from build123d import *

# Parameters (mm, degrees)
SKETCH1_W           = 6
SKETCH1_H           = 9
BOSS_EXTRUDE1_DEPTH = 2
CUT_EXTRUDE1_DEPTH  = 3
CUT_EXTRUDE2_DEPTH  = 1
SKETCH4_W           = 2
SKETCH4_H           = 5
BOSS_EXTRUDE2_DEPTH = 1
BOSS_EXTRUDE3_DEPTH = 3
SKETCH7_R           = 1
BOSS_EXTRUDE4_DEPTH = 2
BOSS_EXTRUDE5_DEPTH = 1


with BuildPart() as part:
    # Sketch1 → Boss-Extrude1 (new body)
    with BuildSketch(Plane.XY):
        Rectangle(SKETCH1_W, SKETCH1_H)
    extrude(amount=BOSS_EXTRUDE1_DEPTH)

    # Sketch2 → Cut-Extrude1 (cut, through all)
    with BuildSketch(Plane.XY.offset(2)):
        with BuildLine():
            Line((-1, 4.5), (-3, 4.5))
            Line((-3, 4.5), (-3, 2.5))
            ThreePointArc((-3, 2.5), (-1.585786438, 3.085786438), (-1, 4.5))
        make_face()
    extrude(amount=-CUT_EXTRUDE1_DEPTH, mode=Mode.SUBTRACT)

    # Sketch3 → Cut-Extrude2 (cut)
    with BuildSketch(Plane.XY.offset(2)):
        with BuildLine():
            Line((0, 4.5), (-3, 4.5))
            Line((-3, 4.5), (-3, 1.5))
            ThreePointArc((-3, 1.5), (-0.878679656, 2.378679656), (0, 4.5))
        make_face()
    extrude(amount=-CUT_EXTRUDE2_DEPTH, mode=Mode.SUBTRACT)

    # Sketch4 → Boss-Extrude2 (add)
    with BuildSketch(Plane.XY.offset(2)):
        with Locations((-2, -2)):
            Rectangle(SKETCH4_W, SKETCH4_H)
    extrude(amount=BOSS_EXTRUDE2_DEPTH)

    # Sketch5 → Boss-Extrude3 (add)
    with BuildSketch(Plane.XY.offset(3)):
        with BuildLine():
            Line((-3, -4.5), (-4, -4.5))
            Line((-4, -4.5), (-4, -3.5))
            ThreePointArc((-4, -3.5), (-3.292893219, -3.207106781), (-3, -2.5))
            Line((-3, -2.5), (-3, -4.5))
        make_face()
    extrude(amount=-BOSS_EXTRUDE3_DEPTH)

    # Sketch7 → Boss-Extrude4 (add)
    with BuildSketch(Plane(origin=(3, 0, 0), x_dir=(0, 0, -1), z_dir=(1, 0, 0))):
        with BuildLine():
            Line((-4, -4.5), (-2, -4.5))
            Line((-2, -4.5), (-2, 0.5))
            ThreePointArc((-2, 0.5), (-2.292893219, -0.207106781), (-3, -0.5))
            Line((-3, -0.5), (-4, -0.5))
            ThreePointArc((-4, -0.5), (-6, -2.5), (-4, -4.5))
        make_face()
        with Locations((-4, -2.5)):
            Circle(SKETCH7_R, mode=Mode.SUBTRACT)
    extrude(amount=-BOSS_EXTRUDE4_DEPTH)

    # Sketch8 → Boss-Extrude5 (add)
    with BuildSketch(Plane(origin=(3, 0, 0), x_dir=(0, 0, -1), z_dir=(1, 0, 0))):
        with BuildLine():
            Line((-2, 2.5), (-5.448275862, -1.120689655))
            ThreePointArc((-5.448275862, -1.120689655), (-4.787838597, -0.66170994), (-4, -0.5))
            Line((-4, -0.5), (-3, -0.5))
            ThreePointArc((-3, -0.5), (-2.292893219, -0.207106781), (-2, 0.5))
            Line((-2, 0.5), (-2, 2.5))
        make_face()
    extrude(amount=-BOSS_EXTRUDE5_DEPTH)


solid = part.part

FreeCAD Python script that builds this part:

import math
import FreeCAD as App
import Part
import Sketcher
from FreeCAD import Vector

doc = App.newDocument("Part")
params = doc.addObject("Spreadsheet::Sheet", "Params")
for row, (alias, value) in enumerate([
    ("sketch1_width", "6 mm"),
    ("sketch1_height", "9 mm"),
    ("pad1_length", "2 mm"),
    ("sketch2_radius", "2 mm"),
    ("sketch3_radius", "3 mm"),
    ("pocket2_length", "1 mm"),
    ("sketch4_width", "2 mm"),
    ("sketch4_height", "5 mm"),
    ("pad2_length", "1 mm"),
    ("sketch5_radius", "1 mm"),
    ("sketch5_width", "1 mm"),
    ("pad3_length", "3 mm"),
    ("sketch6_diameter", "2 mm"),
    ("sketch6_radius", "2 mm"),
    ("sketch6_height", "2 mm"),
    ("pad4_length", "2 mm"),
    ("sketch7_radius", "2 mm"),
    ("sketch7_radius2", "1 mm"),
    ("sketch7_width", "2 mm"),
    ("sketch7_height", "1 mm"),
    ("pad5_length", "1 mm"),
], start=1):
    params.set(f"A{row}", alias)
    params.set(f"B{row}", "=" + value)
    params.setAlias(f"B{row}", alias)

body = doc.addObject("PartDesign::Body", "Body")

sketch1 = doc.addObject("Sketcher::SketchObject", "Sketch")
body.addObject(sketch1)
sketch1.AttachmentSupport = (doc.XY_Plane, [""])
sketch1.MapMode = "FlatFace"
sketch1.addGeometry(Part.LineSegment(Vector(-3, 4, 0), Vector(-3, -4, 0)), False)
sketch1.addGeometry(Part.LineSegment(Vector(-3, -4, 0), Vector(3, -4, 0)), False)
sketch1.addGeometry(Part.LineSegment(Vector(3, -4, 0), Vector(3, 4, 0)), False)
sketch1.addGeometry(Part.LineSegment(Vector(3, 4, 0), Vector(-3, 4, 0)), False)
sketch1.addConstraint(Sketcher.Constraint("Coincident", 0, 2, 1, 1))
sketch1.addConstraint(Sketcher.Constraint("Coincident", 1, 2, 2, 1))
sketch1.addConstraint(Sketcher.Constraint("Coincident", 2, 2, 3, 1))
sketch1.addConstraint(Sketcher.Constraint("Coincident", 3, 2, 0, 1))
sketch1.addConstraint(Sketcher.Constraint("Vertical", 0))
sketch1.addConstraint(Sketcher.Constraint("Horizontal", 1))
sketch1.addConstraint(Sketcher.Constraint("Vertical", 2))
sketch1.addConstraint(Sketcher.Constraint("Horizontal", 3))
sketch1.addConstraint(Sketcher.Constraint("Symmetric", 0, 2, 2, 2, -1, 1))
sketch1.addConstraint(Sketcher.Constraint("DistanceX", 1, 1, 1, 2, 6.0))
sketch1.addConstraint(Sketcher.Constraint("DistanceY", 0, 2, 0, 1, 9.0))
sketch1.setExpression("Constraints[9]", "Params.sketch1_width")
sketch1.setExpression("Constraints[10]", "Params.sketch1_height")
pad1 = doc.addObject("PartDesign::Pad", "Pad")
body.addObject(pad1)
pad1.Profile = sketch1
pad1.setExpression("Length", "Params.pad1_length")

sketch2 = doc.addObject("Sketcher::SketchObject", "Sketch001")
body.addObject(sketch2)
sketch2.AttachmentSupport = (doc.XY_Plane, [""])
sketch2.MapMode = "FlatFace"
sketch2.AttachmentOffset = App.Placement(Vector(0, 0, 2), App.Rotation())
sketch2.addGeometry(Part.LineSegment(Vector(-1, 4.5, 0), Vector(-3, 4.5, 0)), False)
sketch2.addGeometry(Part.LineSegment(Vector(-3, 4.5, 0), Vector(-3, 2.5, 0)), False)
sketch2.addGeometry(Part.ArcOfCircle(Part.Circle(Vector(-3, 4.5, 0), Vector(0, 0, 1), 2), math.radians(-90), math.radians(0)), False)
sketch2.addConstraint(Sketcher.Constraint("Coincident", 0, 2, 1, 1))
sketch2.addConstraint(Sketcher.Constraint("Coincident", 1, 2, 2, 1))
sketch2.addConstraint(Sketcher.Constraint("Coincident", 2, 2, 0, 1))
sketch2.addConstraint(Sketcher.Constraint("Horizontal", 0))
sketch2.addConstraint(Sketcher.Constraint("Vertical", 1))
sketch2.addConstraint(Sketcher.Constraint("Coincident", 0, 2, 2, 3))
sketch2.addConstraint(Sketcher.Constraint("Radius", 2, 2.0))
sketch2.addConstraint(Sketcher.Constraint("DistanceX", 2, 3, -1, 1, 3.0))
sketch2.addConstraint(Sketcher.Constraint("DistanceY", -1, 1, 2, 3, 4.5))
sketch2.setExpression("Constraints[6]", "Params.sketch2_radius")
pocket1 = doc.addObject("PartDesign::Pocket", "Pocket")
body.addObject(pocket1)
pocket1.Profile = sketch2
pocket1.Type = "ThroughAll"

sketch3 = doc.addObject("Sketcher::SketchObject", "Sketch002")
body.addObject(sketch3)
sketch3.AttachmentSupport = (doc.XY_Plane, [""])
sketch3.MapMode = "FlatFace"
sketch3.AttachmentOffset = App.Placement(Vector(0, 0, 2), App.Rotation())
sketch3.addGeometry(Part.LineSegment(Vector(0, 4.5, 0), Vector(-3, 4.5, 0)), False)
sketch3.addGeometry(Part.LineSegment(Vector(-3, 4.5, 0), Vector(-3, 1.5, 0)), False)
sketch3.addGeometry(Part.ArcOfCircle(Part.Circle(Vector(-3, 4.5, 0), Vector(0, 0, 1), 3), math.radians(-90), math.radians(0)), False)
sketch3.addConstraint(Sketcher.Constraint("Coincident", 0, 2, 1, 1))
sketch3.addConstraint(Sketcher.Constraint("Coincident", 1, 2, 2, 1))
sketch3.addConstraint(Sketcher.Constraint("Coincident", 2, 2, 0, 1))
sketch3.addConstraint(Sketcher.Constraint("Horizontal", 0))
sketch3.addConstraint(Sketcher.Constraint("Vertical", 1))
sketch3.addConstraint(Sketcher.Constraint("Coincident", 0, 2, 2, 3))
sketch3.addConstraint(Sketcher.Constraint("PointOnObject", 2, 2, -2))
sketch3.addConstraint(Sketcher.Constraint("Radius", 2, 3.0))
sketch3.addConstraint(Sketcher.Constraint("DistanceY", -1, 1, 2, 3, 4.5))
sketch3.setExpression("Constraints[7]", "Params.sketch3_radius")
pocket2 = doc.addObject("PartDesign::Pocket", "Pocket001")
body.addObject(pocket2)
pocket2.Profile = sketch3
pocket2.setExpression("Length", "Params.pocket2_length")

sketch4 = doc.addObject("Sketcher::SketchObject", "Sketch003")
body.addObject(sketch4)
sketch4.AttachmentSupport = (doc.XY_Plane, [""])
sketch4.MapMode = "FlatFace"
sketch4.AttachmentOffset = App.Placement(Vector(0, 0, 2), App.Rotation())
sketch4.addGeometry(Part.LineSegment(Vector(-3, 0.5, 0), Vector(-3, -4.5, 0)), False)
sketch4.addGeometry(Part.LineSegment(Vector(-3, -4.5, 0), Vector(-1, -4.5, 0)), False)
sketch4.addGeometry(Part.LineSegment(Vector(-1, -4.5, 0), Vector(-1, 0.5, 0)), False)
sketch4.addGeometry(Part.LineSegment(Vector(-1, 0.5, 0), Vector(-3, 0.5, 0)), False)
sketch4.addConstraint(Sketcher.Constraint("Coincident", 0, 2, 1, 1))
sketch4.addConstraint(Sketcher.Constraint("Coincident", 1, 2, 2, 1))
sketch4.addConstraint(Sketcher.Constraint("Coincident", 2, 2, 3, 1))
sketch4.addConstraint(Sketcher.Constraint("Coincident", 3, 2, 0, 1))
sketch4.addConstraint(Sketcher.Constraint("Vertical", 0))
sketch4.addConstraint(Sketcher.Constraint("Horizontal", 1))
sketch4.addConstraint(Sketcher.Constraint("Vertical", 2))
sketch4.addConstraint(Sketcher.Constraint("Horizontal", 3))
sketch4.addConstraint(Sketcher.Constraint("DistanceX", 1, 1, 1, 2, 2.0))
sketch4.addConstraint(Sketcher.Constraint("DistanceY", 0, 2, 0, 1, 5.0))
sketch4.addConstraint(Sketcher.Constraint("DistanceX", 0, 2, -1, 1, 3.0))
sketch4.addConstraint(Sketcher.Constraint("DistanceY", 0, 2, -1, 1, 4.5))
sketch4.setExpression("Constraints[8]", "Params.sketch4_width")
sketch4.setExpression("Constraints[9]", "Params.sketch4_height")
pad2 = doc.addObject("PartDesign::Pad", "Pad001")
body.addObject(pad2)
pad2.Profile = sketch4
pad2.setExpression("Length", "Params.pad2_length")

sketch5 = doc.addObject("Sketcher::SketchObject", "Sketch004")
body.addObject(sketch5)
sketch5.AttachmentSupport = (doc.XY_Plane, [""])
sketch5.MapMode = "FlatFace"
sketch5.AttachmentOffset = App.Placement(Vector(0, 0, 3), App.Rotation())
sketch5.addGeometry(Part.LineSegment(Vector(-4, -4.5, 0), Vector(-3, -4.5, 0)), False)
sketch5.addGeometry(Part.LineSegment(Vector(-3, -4.5, 0), Vector(-3, -2.5, 0)), False)
sketch5.addGeometry(Part.ArcOfCircle(Part.Circle(Vector(-4, -2.5, 0), Vector(0, 0, 1), 1), math.radians(-90), math.radians(0)), False)
sketch5.addGeometry(Part.LineSegment(Vector(-4, -3.5, 0), Vector(-4, -4.5, 0)), False)
sketch5.addConstraint(Sketcher.Constraint("Coincident", 0, 2, 1, 1))
sketch5.addConstraint(Sketcher.Constraint("Tangent", 1, 2, 2, 2))
sketch5.addConstraint(Sketcher.Constraint("Coincident", 2, 1, 3, 1))
sketch5.addConstraint(Sketcher.Constraint("Coincident", 3, 2, 0, 1))
sketch5.addConstraint(Sketcher.Constraint("Horizontal", 0))
sketch5.addConstraint(Sketcher.Constraint("Vertical", 1))
sketch5.addConstraint(Sketcher.Constraint("Vertical", 3))
sketch5.addConstraint(Sketcher.Constraint("Equal", 0, 3))
sketch5.addConstraint(Sketcher.Constraint("Radius", 2, 1.0))
sketch5.addConstraint(Sketcher.Constraint("DistanceX", 0, 1, 0, 2, 1.0))
sketch5.addConstraint(Sketcher.Constraint("DistanceX", 2, 3, -1, 1, 4.0))
sketch5.addConstraint(Sketcher.Constraint("DistanceY", 2, 3, -1, 1, 2.5))
sketch5.setExpression("Constraints[8]", "Params.sketch5_radius")
sketch5.setExpression("Constraints[9]", "Params.sketch5_width")
pad3 = doc.addObject("PartDesign::Pad", "Pad002")
body.addObject(pad3)
pad3.Profile = sketch5
pad3.setExpression("Length", "Params.pad3_length")
pad3.Reversed = True

sketch6 = doc.addObject("Sketcher::SketchObject", "Sketch005")
body.addObject(sketch6)
sketch6.AttachmentSupport = (doc.YZ_Plane, [""])
sketch6.MapMode = "FlatFace"
sketch6.AttachmentOffset = App.Placement(Vector(0, 0, 3), App.Rotation())
sketch6.addGeometry(Part.LineSegment(Vector(-4.5, 4, 0), Vector(-4.5, 2, 0)), False)
sketch6.addGeometry(Part.LineSegment(Vector(-4.5, 2, 0), Vector(0.5, 2, 0)), False)
sketch6.addGeometry(Part.ArcOfCircle(Part.Circle(Vector(0.5, 3, 0), Vector(0, 0, 1), 1), math.radians(-180), math.radians(-90)), False)
sketch6.addGeometry(Part.LineSegment(Vector(-0.5, 3, 0), Vector(-0.5, 4, 0)), False)
sketch6.addGeometry(Part.ArcOfCircle(Part.Circle(Vector(-2.5, 4, 0), Vector(0, 0, 1), 2), math.radians(0), math.radians(180)), False)
sketch6.addGeometry(Part.Circle(Vector(-2.5, 4, 0), Vector(0, 0, 1), 1), False)
sketch6.addConstraint(Sketcher.Constraint("Coincident", 0, 2, 1, 1))
sketch6.addConstraint(Sketcher.Constraint("Tangent", 1, 2, 2, 2))
sketch6.addConstraint(Sketcher.Constraint("Tangent", 2, 1, 3, 1))
sketch6.addConstraint(Sketcher.Constraint("Tangent", 3, 2, 4, 1))
sketch6.addConstraint(Sketcher.Constraint("Tangent", 4, 2, 0, 1))
sketch6.addConstraint(Sketcher.Constraint("Vertical", 0))
sketch6.addConstraint(Sketcher.Constraint("Horizontal", 1))
sketch6.addConstraint(Sketcher.Constraint("Vertical", 3))
sketch6.addConstraint(Sketcher.Constraint("Coincident", 5, 3, 4, 3))
sketch6.addConstraint(Sketcher.Constraint("Equal", 2, 5))
sketch6.addConstraint(Sketcher.Constraint("Diameter", 5, 2.0))
sketch6.addConstraint(Sketcher.Constraint("Radius", 4, 2.0))
sketch6.addConstraint(Sketcher.Constraint("DistanceY", 0, 2, 0, 1, 2.0))
sketch6.addConstraint(Sketcher.Constraint("DistanceY", -1, 1, 2, 3, 3.0))
sketch6.addConstraint(Sketcher.Constraint("DistanceX", -1, 1, 2, 3, 0.5))
sketch6.setExpression("Constraints[10]", "Params.sketch6_diameter")
sketch6.setExpression("Constraints[11]", "Params.sketch6_radius")
sketch6.setExpression("Constraints[12]", "Params.sketch6_height")
pad4 = doc.addObject("PartDesign::Pad", "Pad003")
body.addObject(pad4)
pad4.Profile = sketch6
pad4.setExpression("Length", "Params.pad4_length")
pad4.Reversed = True

sketch7 = doc.addObject("Sketcher::SketchObject", "Sketch006")
body.addObject(sketch7)
sketch7.AttachmentSupport = (doc.YZ_Plane, [""])
sketch7.MapMode = "FlatFace"
sketch7.AttachmentOffset = App.Placement(Vector(0, 0, 3), App.Rotation())
sketch7.addGeometry(Part.LineSegment(Vector(2.5, 2, 0), Vector(-1.1, 5.4, 0)), False)
sketch7.addGeometry(Part.ArcOfCircle(Part.Circle(Vector(-2.5, 4, 0), Vector(0, 0, 1), 2), math.radians(0), math.radians(46)), False)
sketch7.addGeometry(Part.LineSegment(Vector(-0.5, 4, 0), Vector(-0.5, 3, 0)), False)
sketch7.addGeometry(Part.ArcOfCircle(Part.Circle(Vector(0.5, 3, 0), Vector(0, 0, 1), 1), math.radians(-180), math.radians(-90)), False)
sketch7.addGeometry(Part.LineSegment(Vector(0.5, 2, 0), Vector(2.5, 2, 0)), False)
sketch7.addConstraint(Sketcher.Constraint("Tangent", 0, 2, 1, 2))
sketch7.addConstraint(Sketcher.Constraint("Tangent", 1, 1, 2, 1))
sketch7.addConstraint(Sketcher.Constraint("Tangent", 2, 2, 3, 1))
sketch7.addConstraint(Sketcher.Constraint("Tangent", 3, 2, 4, 1))
sketch7.addConstraint(Sketcher.Constraint("Coincident", 4, 2, 0, 1))
sketch7.addConstraint(Sketcher.Constraint("Vertical", 2))
sketch7.addConstraint(Sketcher.Constraint("Horizontal", 4))
sketch7.addConstraint(Sketcher.Constraint("Radius", 1, 2.0))
sketch7.addConstraint(Sketcher.Constraint("Radius", 3, 1.0))
sketch7.addConstraint(Sketcher.Constraint("DistanceX", 4, 1, 4, 2, 2.0))
sketch7.addConstraint(Sketcher.Constraint("DistanceY", 2, 2, 2, 1, 1.0))
sketch7.addConstraint(Sketcher.Constraint("DistanceY", -1, 1, 1, 3, 4.0))
sketch7.addConstraint(Sketcher.Constraint("DistanceX", 1, 3, -1, 1, 2.5))
sketch7.setExpression("Constraints[7]", "Params.sketch7_radius")
sketch7.setExpression("Constraints[8]", "Params.sketch7_radius2")
sketch7.setExpression("Constraints[9]", "Params.sketch7_width")
sketch7.setExpression("Constraints[10]", "Params.sketch7_height")
pad5 = doc.addObject("PartDesign::Pad", "Pad004")
body.addObject(pad5)
pad5.Profile = sketch7
pad5.setExpression("Length", "Params.pad5_length")
pad5.Reversed = True

doc.recompute()
